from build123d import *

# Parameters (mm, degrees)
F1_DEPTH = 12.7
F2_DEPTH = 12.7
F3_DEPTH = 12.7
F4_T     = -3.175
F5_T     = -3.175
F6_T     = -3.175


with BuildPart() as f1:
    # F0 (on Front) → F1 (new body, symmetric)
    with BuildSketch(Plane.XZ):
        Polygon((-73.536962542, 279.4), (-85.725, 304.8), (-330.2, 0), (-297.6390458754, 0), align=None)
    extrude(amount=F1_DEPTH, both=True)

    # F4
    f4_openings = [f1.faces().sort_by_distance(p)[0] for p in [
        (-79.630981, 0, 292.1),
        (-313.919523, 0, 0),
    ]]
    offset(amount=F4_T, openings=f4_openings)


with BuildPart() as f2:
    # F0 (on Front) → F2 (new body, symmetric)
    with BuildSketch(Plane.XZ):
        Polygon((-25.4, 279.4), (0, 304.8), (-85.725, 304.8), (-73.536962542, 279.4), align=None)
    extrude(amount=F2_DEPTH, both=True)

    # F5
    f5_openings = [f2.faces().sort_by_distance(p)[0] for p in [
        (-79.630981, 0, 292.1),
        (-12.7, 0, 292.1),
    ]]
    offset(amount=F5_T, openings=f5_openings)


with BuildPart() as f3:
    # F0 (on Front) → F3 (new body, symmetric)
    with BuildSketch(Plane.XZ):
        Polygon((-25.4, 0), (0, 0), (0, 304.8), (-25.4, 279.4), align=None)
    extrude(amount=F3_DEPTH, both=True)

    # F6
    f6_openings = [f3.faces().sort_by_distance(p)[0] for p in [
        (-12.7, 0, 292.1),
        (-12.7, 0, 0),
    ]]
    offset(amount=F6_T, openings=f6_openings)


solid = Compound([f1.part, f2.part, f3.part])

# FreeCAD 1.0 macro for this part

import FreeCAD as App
import Part
import Sketcher
Q = App.Units.Quantity


def faces_at(feature, points):
    """Names of the faces that lie closest to the given points."""
    faces = feature.Shape.Faces
    near = lambda p: min(range(len(faces)), key=lambda i: faces[i].distToShape(Part.Vertex(*p))[0])
    return sorted({f"Face{near(p) + 1}" for p in points})

doc = App.newDocument("Part")
body = doc.addObject("PartDesign::Body", "Body")

# Sketch on XZ plane
sketch1 = body.newObject("Sketcher::SketchObject", "Sketch")
sketch1.AttachmentSupport = (doc.getObject("XZ_Plane"), [""])
sketch1.MapMode = "FlatFace"
sketch1.addGeometry(Part.LineSegment(App.Vector(-73.536963, 279.4, 0), App.Vector(-85.725, 304.8, 0)), False)
sketch1.addGeometry(Part.LineSegment(App.Vector(-85.725, 304.8, 0), App.Vector(-330.2, 0, 0)), False)
sketch1.addGeometry(Part.LineSegment(App.Vector(-330.2, 0, 0), App.Vector(-297.639046, 0, 0)), False)
sketch1.addGeometry(Part.LineSegment(App.Vector(-297.639046, 0, 0), App.Vector(-73.536963, 279.4, 0)), False)
sketch1.addConstraint(Sketcher.Constraint("Coincident", 0, 2, 1, 1))
sketch1.addConstraint(Sketcher.Constraint("Coincident", 1, 2, 2, 1))
sketch1.addConstraint(Sketcher.Constraint("Coincident", 2, 2, 3, 1))
sketch1.addConstraint(Sketcher.Constraint("Coincident", 3, 2, 0, 1))
sketch1.addConstraint(Sketcher.Constraint("Horizontal", 2))
sketch1.addConstraint(Sketcher.Constraint("PointOnObject", 1, 2, -1))
sketch1.addConstraint(Sketcher.Constraint("Parallel", 1, 3))
sketch1.addConstraint(Sketcher.Constraint("DistanceY", -1, 1, 0, 2, Q("12 in")))
sketch1.addConstraint(Sketcher.Constraint("DistanceX", 1, 2, -1, 1, Q("13 in")))
sketch1.addConstraint(Sketcher.Constraint("DistanceY", -1, 1, 3, 2, Q("11 in")))
sketch1.addConstraint(Sketcher.Constraint("DistanceX", 0, 2, -1, 1, Q("3.375 in")))
sketch1.addConstraint(Sketcher.Constraint("Distance", 0, 28.172828))
pad1 = body.newObject("PartDesign::Pad", "Pad")
pad1.Profile = sketch1
pad1.Length = Q("1 in")
pad1.Midplane = True
doc.recompute()

thickness = body.newObject("PartDesign::Thickness", "Thickness")
thickness.Base = (pad1, faces_at(pad1, [(-79.631, 0, 292.1), (-313.92, 0, 0)]))
thickness.Value = Q("0.125 in")
thickness.Reversed = True
thickness.Join = "Arc"
body2 = doc.addObject("PartDesign::Body", "Body001")

# Sketch on XZ plane
sketch2 = body2.newObject("Sketcher::SketchObject", "Sketch001")
sketch2.AttachmentSupport = (doc.getObject("XZ_Plane001"), [""])
sketch2.MapMode = "FlatFace"
sketch2.addGeometry(Part.LineSegment(App.Vector(-25.4, 279.4, 0), App.Vector(0, 304.8, 0)), False)
sketch2.addGeometry(Part.LineSegment(App.Vector(0, 304.8, 0), App.Vector(-85.725, 304.8, 0)), False)
sketch2.addGeometry(Part.LineSegment(App.Vector(-85.725, 304.8, 0), App.Vector(-73.536963, 279.4, 0)), False)
sketch2.addGeometry(Part.LineSegment(App.Vector(-73.536963, 279.4, 0), App.Vector(-25.4, 279.4, 0)), False)
sketch2.addConstraint(Sketcher.Constraint("Coincident", 0, 2, 1, 1))
sketch2.addConstraint(Sketcher.Constraint("Coincident", 1, 2, 2, 1))
sketch2.addConstraint(Sketcher.Constraint("Coincident", 2, 2, 3, 1))
sketch2.addConstraint(Sketcher.Constraint("Coincident", 3, 2, 0, 1))
sketch2.addConstraint(Sketcher.Constraint("Horizontal", 1))
sketch2.addConstraint(Sketcher.Constraint("Horizontal", 3))
sketch2.addConstraint(Sketcher.Constraint("PointOnObject", 0, 2, -2))
sketch2.addConstraint(Sketcher.Constraint("DistanceY", -1, 1, 0, 2, Q("12 in")))
sketch2.addConstraint(Sketcher.Constraint("DistanceY", -1, 1, 2, 2, Q("11 in")))
sketch2.addConstraint(Sketcher.Constraint("DistanceX", 3, 2, -1, 1, Q("1 in")))
sketch2.addConstraint(Sketcher.Constraint("DistanceX", 1, 2, 1, 1, Q("3.375 in")))
sketch2.addConstraint(Sketcher.Constraint("Distance", 2, 28.172828))
pad2 = body2.newObject("PartDesign::Pad", "Pad001")
pad2.Profile = sketch2
pad2.Length = Q("1 in")
pad2.Midplane = True
doc.recompute()

thickness2 = body2.newObject("PartDesign::Thickness", "Thickness001")
thickness2.Base = (pad2, faces_at(pad2, [(-79.631, 0, 292.1), (-12.7, 0, 292.1)]))
thickness2.Value = Q("0.125 in")
thickness2.Reversed = True
thickness2.Join = "Arc"
body3 = doc.addObject("PartDesign::Body", "Body002")

# Sketch on XZ plane
sketch3 = body3.newObject("Sketcher::SketchObject", "Sketch002")
sketch3.AttachmentSupport = (doc.getObject("XZ_Plane002"), [""])
sketch3.MapMode = "FlatFace"
sketch3.addGeometry(Part.LineSegment(App.Vector(-25.4, 0, 0), App.Vector(0, 0, 0)), False)
sketch3.addGeometry(Part.LineSegment(App.Vector(0, 0, 0), App.Vector(0, 304.8, 0)), False)
sketch3.addGeometry(Part.LineSegment(App.Vector(0, 304.8, 0), App.Vector(-25.4, 279.4, 0)), False)
sketch3.addGeometry(Part.LineSegment(App.Vector(-25.4, 279.4, 0), App.Vector(-25.4, 0, 0)), False)
sketch3.addConstraint(Sketcher.Constraint("Coincident", 0, 2, 1, 1))
sketch3.addConstraint(Sketcher.Constraint("Coincident", 1, 2, 2, 1))
sketch3.addConstraint(Sketcher.Constraint("Coincident", 2, 2, 3, 1))
sketch3.addConstraint(Sketcher.Constraint("Coincident", 3, 2, 0, 1))
sketch3.addConstraint(Sketcher.Constraint("Horizontal", 0))
sketch3.addConstraint(Sketcher.Constraint("Vertical", 1))
sketch3.addConstraint(Sketcher.Constraint("Vertical", 3))
sketch3.addConstraint(Sketcher.Constraint("Coincident", 0, 2, -1, 1))
sketch3.addConstraint(Sketcher.Constraint("DistanceX", 0, 1, 0, 2, Q("1 in")))
sketch3.addConstraint(Sketcher.Constraint("DistanceY", 1, 1, 1, 2, Q("12 in")))
sketch3.addConstraint(Sketcher.Constraint("DistanceY", 3, 2, 3, 1, Q("11 in")))
pad3 = body3.newObject("PartDesign::Pad", "Pad002")
pad3.Profile = sketch3
pad3.Length = Q("1 in")
pad3.Midplane = True
doc.recompute()

thickness3 = body3.newObject("PartDesign::Thickness", "Thickness002")
thickness3.Base = (pad3, faces_at(pad3, [(-12.7, 0, 292.1), (-12.7, 0, 0)]))
thickness3.Value = Q("0.125 in")
thickness3.Reversed = True
thickness3.Join = "Arc"

doc.recompute()
